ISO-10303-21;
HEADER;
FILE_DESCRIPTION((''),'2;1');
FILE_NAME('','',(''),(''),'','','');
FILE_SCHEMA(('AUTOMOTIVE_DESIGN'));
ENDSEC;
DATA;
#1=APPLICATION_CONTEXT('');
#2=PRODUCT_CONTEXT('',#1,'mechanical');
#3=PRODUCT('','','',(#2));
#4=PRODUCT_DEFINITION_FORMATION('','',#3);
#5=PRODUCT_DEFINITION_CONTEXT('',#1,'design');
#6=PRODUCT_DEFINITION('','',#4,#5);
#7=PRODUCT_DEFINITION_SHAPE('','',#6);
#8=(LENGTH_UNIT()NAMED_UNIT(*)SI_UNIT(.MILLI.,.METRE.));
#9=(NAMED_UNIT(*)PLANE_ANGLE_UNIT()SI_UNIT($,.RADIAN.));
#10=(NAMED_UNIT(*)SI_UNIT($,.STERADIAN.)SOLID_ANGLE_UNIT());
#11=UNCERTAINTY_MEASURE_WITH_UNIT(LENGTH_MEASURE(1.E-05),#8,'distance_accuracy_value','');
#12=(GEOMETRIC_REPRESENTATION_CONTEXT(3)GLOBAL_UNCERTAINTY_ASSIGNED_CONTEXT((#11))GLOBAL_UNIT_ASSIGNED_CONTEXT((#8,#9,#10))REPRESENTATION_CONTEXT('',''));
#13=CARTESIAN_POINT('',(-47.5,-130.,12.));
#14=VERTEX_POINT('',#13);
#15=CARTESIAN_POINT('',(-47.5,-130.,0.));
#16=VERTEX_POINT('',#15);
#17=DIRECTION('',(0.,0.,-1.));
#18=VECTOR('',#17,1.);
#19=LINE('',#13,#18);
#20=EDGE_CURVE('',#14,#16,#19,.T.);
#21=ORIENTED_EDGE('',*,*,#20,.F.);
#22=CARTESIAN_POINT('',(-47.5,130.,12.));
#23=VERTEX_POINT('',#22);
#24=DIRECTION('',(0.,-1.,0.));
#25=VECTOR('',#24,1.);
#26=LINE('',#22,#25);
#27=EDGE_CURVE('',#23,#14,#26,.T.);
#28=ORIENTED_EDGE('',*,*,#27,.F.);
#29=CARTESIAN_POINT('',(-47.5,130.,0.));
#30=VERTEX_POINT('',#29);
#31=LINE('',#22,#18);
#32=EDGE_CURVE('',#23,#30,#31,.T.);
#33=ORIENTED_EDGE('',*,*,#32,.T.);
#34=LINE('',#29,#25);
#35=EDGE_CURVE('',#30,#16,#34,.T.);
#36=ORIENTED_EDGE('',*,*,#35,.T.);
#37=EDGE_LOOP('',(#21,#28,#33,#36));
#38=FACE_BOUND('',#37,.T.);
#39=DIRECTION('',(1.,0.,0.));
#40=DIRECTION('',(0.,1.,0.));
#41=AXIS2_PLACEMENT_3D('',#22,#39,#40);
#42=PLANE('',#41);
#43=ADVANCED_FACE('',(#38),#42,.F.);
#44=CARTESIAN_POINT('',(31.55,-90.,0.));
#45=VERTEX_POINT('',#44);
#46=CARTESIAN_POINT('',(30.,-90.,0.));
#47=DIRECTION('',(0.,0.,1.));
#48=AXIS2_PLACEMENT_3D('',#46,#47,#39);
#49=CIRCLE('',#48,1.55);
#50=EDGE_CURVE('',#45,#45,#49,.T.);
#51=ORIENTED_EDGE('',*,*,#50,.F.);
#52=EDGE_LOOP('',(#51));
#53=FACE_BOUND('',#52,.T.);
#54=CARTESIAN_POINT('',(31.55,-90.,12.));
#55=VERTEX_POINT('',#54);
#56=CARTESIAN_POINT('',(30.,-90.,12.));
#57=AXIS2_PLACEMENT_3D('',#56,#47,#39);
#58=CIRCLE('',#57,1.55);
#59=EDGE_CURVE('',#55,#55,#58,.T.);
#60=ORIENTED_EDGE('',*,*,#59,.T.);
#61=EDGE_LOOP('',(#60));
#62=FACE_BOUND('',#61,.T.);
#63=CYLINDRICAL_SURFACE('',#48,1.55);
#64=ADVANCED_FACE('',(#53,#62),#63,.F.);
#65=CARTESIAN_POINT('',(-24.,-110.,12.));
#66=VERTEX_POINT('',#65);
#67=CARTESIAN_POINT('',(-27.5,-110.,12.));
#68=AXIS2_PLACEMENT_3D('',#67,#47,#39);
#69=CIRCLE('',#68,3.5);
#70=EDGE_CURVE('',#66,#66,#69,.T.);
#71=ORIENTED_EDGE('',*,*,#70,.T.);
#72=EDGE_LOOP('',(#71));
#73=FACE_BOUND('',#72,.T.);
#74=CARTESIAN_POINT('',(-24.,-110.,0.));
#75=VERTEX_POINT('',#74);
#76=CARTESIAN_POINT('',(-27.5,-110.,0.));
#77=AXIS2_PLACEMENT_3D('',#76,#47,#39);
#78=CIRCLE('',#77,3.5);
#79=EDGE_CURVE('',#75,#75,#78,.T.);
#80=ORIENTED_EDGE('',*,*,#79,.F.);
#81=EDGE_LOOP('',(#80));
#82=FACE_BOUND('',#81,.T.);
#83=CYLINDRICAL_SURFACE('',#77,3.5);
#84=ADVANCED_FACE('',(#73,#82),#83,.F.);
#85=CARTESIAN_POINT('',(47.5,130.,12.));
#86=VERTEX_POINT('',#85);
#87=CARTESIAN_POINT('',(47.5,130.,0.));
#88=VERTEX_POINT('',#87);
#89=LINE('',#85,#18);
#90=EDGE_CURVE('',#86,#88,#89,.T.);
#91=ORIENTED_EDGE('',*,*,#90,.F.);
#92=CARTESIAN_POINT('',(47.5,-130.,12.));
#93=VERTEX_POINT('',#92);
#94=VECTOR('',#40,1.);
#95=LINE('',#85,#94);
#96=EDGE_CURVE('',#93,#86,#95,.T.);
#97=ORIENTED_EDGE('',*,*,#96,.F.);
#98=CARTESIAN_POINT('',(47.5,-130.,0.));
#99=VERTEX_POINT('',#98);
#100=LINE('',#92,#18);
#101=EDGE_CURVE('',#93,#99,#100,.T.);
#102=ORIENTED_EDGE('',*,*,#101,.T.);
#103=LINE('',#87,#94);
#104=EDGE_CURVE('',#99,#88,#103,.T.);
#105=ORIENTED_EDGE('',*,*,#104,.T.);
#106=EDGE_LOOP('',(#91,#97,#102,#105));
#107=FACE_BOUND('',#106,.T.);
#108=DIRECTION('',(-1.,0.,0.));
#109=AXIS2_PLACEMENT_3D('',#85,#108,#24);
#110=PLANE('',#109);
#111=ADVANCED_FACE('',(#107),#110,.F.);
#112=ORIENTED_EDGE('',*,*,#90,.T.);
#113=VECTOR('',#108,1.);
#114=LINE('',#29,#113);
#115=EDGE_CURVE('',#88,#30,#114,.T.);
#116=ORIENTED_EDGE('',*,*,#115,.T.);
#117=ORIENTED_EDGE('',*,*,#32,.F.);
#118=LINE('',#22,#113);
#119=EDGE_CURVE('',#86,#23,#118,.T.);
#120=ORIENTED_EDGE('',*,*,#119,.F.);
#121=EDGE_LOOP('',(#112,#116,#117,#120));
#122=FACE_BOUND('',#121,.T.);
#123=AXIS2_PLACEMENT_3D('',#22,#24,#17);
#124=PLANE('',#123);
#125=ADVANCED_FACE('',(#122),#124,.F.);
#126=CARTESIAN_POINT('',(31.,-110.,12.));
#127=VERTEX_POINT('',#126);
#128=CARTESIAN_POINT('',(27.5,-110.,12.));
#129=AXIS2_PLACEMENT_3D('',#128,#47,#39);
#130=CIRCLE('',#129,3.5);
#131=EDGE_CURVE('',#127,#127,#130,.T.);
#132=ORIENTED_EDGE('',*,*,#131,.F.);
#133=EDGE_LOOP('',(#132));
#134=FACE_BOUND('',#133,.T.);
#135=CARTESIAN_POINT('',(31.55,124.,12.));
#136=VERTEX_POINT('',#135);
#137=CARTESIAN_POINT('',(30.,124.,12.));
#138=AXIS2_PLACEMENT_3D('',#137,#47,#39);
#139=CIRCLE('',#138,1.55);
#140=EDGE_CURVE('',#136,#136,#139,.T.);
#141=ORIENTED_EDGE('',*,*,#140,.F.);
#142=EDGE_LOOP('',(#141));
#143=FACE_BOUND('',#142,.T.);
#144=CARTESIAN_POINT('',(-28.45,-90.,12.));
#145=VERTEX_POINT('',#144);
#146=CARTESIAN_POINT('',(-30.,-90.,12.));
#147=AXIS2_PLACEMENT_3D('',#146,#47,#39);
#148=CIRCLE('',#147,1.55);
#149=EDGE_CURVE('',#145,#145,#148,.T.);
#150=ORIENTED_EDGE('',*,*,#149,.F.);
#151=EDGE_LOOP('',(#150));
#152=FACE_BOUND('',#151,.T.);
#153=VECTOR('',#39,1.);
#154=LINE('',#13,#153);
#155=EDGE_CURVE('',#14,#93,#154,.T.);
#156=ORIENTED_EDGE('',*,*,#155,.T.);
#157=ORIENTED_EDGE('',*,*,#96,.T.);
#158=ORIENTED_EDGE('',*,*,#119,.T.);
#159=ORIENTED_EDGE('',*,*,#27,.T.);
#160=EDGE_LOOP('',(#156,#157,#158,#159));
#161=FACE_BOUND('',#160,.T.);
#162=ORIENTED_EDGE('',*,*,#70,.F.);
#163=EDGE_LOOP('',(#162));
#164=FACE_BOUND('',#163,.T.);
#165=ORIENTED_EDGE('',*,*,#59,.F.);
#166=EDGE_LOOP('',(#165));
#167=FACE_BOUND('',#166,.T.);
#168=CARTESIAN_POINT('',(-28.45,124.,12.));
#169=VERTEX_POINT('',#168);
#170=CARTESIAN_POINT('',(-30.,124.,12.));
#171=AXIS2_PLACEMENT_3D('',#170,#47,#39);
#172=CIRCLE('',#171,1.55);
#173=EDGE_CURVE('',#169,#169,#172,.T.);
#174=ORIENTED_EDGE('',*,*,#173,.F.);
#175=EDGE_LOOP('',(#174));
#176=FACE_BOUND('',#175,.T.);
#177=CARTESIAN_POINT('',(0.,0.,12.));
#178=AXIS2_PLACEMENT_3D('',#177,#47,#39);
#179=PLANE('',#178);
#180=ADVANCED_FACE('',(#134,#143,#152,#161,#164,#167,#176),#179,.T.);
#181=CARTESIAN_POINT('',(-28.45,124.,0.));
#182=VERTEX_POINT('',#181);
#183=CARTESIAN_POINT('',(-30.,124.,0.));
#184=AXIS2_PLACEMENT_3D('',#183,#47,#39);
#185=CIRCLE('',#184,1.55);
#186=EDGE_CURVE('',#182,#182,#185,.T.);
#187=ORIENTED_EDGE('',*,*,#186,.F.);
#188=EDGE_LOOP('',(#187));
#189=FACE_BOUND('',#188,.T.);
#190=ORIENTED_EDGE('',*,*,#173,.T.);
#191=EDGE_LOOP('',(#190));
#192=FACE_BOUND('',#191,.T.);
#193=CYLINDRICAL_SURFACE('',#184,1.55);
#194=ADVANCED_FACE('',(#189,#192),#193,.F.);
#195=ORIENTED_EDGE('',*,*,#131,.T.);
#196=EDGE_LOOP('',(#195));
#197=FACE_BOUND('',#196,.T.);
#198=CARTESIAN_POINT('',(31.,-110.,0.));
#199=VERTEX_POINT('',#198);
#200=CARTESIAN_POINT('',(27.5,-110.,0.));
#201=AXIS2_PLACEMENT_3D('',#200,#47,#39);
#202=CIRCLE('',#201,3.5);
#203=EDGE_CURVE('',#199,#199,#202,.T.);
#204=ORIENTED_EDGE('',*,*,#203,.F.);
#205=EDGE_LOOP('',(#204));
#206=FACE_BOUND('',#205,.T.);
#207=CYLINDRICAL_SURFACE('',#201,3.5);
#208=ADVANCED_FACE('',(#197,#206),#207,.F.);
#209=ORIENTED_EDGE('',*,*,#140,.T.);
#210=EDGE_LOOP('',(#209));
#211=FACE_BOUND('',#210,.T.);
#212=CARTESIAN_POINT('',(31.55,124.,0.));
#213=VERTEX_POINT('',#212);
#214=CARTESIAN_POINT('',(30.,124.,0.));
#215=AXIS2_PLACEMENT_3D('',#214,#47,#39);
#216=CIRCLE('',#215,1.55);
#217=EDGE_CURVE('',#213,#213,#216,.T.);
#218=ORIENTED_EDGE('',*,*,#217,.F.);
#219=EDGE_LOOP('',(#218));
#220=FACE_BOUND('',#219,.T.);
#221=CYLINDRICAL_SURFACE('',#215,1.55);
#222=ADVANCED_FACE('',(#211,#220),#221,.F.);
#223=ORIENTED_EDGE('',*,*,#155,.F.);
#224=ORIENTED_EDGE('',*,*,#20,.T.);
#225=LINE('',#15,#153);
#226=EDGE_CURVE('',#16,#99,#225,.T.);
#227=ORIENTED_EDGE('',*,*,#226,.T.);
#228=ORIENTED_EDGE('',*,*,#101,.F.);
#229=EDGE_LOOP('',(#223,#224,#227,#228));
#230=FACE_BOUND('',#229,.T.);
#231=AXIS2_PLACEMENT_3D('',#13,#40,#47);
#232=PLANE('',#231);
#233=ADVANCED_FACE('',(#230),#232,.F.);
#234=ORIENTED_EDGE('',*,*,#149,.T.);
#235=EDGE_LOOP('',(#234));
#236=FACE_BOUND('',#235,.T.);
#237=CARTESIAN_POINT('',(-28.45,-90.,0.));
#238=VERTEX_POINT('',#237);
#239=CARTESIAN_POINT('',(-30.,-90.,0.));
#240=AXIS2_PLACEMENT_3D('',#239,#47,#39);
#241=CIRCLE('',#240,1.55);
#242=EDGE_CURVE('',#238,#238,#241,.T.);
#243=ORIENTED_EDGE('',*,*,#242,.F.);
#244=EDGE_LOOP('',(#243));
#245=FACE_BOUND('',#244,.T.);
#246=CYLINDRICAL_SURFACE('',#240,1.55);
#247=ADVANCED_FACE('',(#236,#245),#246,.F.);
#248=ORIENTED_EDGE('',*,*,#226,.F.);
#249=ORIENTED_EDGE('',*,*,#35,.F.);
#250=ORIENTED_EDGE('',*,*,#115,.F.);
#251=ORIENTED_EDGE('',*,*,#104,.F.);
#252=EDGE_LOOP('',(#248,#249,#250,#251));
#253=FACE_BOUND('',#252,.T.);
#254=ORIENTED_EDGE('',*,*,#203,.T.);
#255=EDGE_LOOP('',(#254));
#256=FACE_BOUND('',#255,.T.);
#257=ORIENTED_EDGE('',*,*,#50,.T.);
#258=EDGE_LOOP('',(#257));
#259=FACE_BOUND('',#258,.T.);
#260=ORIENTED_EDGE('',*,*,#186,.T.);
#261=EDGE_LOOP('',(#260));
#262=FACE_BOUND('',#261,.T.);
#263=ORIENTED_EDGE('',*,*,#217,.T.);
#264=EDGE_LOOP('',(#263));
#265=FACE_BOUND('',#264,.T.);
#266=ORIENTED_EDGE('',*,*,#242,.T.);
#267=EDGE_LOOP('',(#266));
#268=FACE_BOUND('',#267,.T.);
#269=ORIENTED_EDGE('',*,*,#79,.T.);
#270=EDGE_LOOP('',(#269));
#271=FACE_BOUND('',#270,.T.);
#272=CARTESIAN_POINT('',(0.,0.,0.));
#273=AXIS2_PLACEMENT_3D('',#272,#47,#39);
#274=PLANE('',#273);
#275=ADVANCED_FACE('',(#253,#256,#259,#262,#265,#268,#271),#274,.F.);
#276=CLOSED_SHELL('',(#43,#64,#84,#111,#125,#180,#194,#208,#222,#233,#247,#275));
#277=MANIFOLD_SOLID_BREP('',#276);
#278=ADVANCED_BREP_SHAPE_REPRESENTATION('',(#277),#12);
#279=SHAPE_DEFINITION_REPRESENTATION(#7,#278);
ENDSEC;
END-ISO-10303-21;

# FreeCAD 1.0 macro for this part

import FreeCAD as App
import Part
import Sketcher
from FreeCAD import Vector

doc = App.newDocument("Part")
body = doc.addObject("PartDesign::Body", "Body")

sketch1 = body.newObject("Sketcher::SketchObject", "Sketch")
sketch1.AttachmentSupport = (doc.getObject("XY_Plane"), [""])
sketch1.MapMode = "FlatFace"
sketch1.addGeometry(Part.LineSegment(Vector(-48, 130, 0), Vector(-48, -130, 0)), False)
sketch1.addGeometry(Part.LineSegment(Vector(-48, -130, 0), Vector(48, -130, 0)), False)
sketch1.addGeometry(Part.LineSegment(Vector(48, -130, 0), Vector(48, 130, 0)), False)
sketch1.addGeometry(Part.LineSegment(Vector(48, 130, 0), Vector(-48, 130, 0)), False)
sketch1.addConstraint(Sketcher.Constraint("Coincident", 0, 2, 1, 1))
sketch1.addConstraint(Sketcher.Constraint("Coincident", 1, 2, 2, 1))
sketch1.addConstraint(Sketcher.Constraint("Coincident", 2, 2, 3, 1))
sketch1.addConstraint(Sketcher.Constraint("Coincident", 3, 2, 0, 1))
sketch1.addConstraint(Sketcher.Constraint("Vertical", 0))
sketch1.addConstraint(Sketcher.Constraint("Horizontal", 1))
sketch1.addConstraint(Sketcher.Constraint("Vertical", 2))
sketch1.addConstraint(Sketcher.Constraint("Horizontal", 3))
sketch1.addConstraint(Sketcher.Constraint("Symmetric", 0, 2, 2, 2, -1, 1))
sketch1.addConstraint(Sketcher.Constraint("DistanceX", 1, 1, 1, 2, 95.0))
sketch1.addConstraint(Sketcher.Constraint("DistanceY", 0, 2, 0, 1, 260.0))
pad1 = body.newObject("PartDesign::Pad", "Pad")
pad1.Profile = sketch1
pad1.Length = 12

sketch2 = body.newObject("Sketcher::SketchObject", "Sketch001")
sketch2.AttachmentSupport = (doc.getObject("XY_Plane"), [""])
sketch2.MapMode = "FlatFace"
sketch2.AttachmentOffset = App.Placement(Vector(0, 0, 12), App.Rotation())
sketch2.addGeometry(Part.Circle(Vector(-27.5, -110, 0), Vector(0, 0, 1), 3.5), False)
sketch2.addGeometry(Part.Circle(Vector(27.5, -110, 0), Vector(0, 0, 1), 3.5), False)
sketch2.addConstraint(Sketcher.Constraint("Equal", 0, 1))
sketch2.addConstraint(Sketcher.Constraint("Symmetric", 0, 3, 1, 3, -2))
sketch2.addConstraint(Sketcher.Constraint("Diameter", 0, 7.0))
sketch2.addConstraint(Sketcher.Constraint("DistanceY", 0, 3, -1, 1, 110.0))
sketch2.addConstraint(Sketcher.Constraint("DistanceX", 0, 3, 1, 3, 55.0))
pocket1 = body.newObject("PartDesign::Pocket", "Pocket")
pocket1.Profile = sketch2
pocket1.Type = "ThroughAll"

sketch3 = body.newObject("Sketcher::SketchObject", "Sketch002")
sketch3.AttachmentSupport = (doc.getObject("XY_Plane"), [""])
sketch3.MapMode = "FlatFace"
sketch3.AttachmentOffset = App.Placement(Vector(0, 0, 12), App.Rotation())
sketch3.addGeometry(Part.Circle(Vector(-30, -90, 0), Vector(0, 0, 1), 1.6), False)
sketch3.addGeometry(Part.Circle(Vector(30, -90, 0), Vector(0, 0, 1), 1.6), False)
sketch3.addGeometry(Part.Circle(Vector(30, 124, 0), Vector(0, 0, 1), 1.6), False)
sketch3.addGeometry(Part.Circle(Vector(-30, 124, 0), Vector(0, 0, 1), 1.6), False)
sketch3.addConstraint(Sketcher.Constraint("Equal", 0, 1))
sketch3.addConstraint(Sketcher.Constraint("Equal", 1, 2))
sketch3.addConstraint(Sketcher.Constraint("Equal", 2, 3))
sketch3.addConstraint(Sketcher.Constraint("Symmetric", 0, 3, 1, 3, -2))
sketch3.addConstraint(Sketcher.Constraint("Symmetric", 2, 3, 3, 3, -2))
sketch3.addConstraint(Sketcher.Constraint("Vertical", 1, 3, 2, 3))
sketch3.addConstraint(Sketcher.Constraint("Diameter", 0, 3.1))
sketch3.addConstraint(Sketcher.Constraint("DistanceX", 0, 3, -1, 1, 30.0))
sketch3.addConstraint(Sketcher.Constraint("DistanceY", 0, 3, -1, 1, 90.0))
sketch3.addConstraint(Sketcher.Constraint("DistanceY", -1, 1, 2, 3, 124.0))
pocket2 = body.newObject("PartDesign::Pocket", "Pocket001")
pocket2.Profile = sketch3
pocket2.Type = "ThroughAll"

doc.recompute()
